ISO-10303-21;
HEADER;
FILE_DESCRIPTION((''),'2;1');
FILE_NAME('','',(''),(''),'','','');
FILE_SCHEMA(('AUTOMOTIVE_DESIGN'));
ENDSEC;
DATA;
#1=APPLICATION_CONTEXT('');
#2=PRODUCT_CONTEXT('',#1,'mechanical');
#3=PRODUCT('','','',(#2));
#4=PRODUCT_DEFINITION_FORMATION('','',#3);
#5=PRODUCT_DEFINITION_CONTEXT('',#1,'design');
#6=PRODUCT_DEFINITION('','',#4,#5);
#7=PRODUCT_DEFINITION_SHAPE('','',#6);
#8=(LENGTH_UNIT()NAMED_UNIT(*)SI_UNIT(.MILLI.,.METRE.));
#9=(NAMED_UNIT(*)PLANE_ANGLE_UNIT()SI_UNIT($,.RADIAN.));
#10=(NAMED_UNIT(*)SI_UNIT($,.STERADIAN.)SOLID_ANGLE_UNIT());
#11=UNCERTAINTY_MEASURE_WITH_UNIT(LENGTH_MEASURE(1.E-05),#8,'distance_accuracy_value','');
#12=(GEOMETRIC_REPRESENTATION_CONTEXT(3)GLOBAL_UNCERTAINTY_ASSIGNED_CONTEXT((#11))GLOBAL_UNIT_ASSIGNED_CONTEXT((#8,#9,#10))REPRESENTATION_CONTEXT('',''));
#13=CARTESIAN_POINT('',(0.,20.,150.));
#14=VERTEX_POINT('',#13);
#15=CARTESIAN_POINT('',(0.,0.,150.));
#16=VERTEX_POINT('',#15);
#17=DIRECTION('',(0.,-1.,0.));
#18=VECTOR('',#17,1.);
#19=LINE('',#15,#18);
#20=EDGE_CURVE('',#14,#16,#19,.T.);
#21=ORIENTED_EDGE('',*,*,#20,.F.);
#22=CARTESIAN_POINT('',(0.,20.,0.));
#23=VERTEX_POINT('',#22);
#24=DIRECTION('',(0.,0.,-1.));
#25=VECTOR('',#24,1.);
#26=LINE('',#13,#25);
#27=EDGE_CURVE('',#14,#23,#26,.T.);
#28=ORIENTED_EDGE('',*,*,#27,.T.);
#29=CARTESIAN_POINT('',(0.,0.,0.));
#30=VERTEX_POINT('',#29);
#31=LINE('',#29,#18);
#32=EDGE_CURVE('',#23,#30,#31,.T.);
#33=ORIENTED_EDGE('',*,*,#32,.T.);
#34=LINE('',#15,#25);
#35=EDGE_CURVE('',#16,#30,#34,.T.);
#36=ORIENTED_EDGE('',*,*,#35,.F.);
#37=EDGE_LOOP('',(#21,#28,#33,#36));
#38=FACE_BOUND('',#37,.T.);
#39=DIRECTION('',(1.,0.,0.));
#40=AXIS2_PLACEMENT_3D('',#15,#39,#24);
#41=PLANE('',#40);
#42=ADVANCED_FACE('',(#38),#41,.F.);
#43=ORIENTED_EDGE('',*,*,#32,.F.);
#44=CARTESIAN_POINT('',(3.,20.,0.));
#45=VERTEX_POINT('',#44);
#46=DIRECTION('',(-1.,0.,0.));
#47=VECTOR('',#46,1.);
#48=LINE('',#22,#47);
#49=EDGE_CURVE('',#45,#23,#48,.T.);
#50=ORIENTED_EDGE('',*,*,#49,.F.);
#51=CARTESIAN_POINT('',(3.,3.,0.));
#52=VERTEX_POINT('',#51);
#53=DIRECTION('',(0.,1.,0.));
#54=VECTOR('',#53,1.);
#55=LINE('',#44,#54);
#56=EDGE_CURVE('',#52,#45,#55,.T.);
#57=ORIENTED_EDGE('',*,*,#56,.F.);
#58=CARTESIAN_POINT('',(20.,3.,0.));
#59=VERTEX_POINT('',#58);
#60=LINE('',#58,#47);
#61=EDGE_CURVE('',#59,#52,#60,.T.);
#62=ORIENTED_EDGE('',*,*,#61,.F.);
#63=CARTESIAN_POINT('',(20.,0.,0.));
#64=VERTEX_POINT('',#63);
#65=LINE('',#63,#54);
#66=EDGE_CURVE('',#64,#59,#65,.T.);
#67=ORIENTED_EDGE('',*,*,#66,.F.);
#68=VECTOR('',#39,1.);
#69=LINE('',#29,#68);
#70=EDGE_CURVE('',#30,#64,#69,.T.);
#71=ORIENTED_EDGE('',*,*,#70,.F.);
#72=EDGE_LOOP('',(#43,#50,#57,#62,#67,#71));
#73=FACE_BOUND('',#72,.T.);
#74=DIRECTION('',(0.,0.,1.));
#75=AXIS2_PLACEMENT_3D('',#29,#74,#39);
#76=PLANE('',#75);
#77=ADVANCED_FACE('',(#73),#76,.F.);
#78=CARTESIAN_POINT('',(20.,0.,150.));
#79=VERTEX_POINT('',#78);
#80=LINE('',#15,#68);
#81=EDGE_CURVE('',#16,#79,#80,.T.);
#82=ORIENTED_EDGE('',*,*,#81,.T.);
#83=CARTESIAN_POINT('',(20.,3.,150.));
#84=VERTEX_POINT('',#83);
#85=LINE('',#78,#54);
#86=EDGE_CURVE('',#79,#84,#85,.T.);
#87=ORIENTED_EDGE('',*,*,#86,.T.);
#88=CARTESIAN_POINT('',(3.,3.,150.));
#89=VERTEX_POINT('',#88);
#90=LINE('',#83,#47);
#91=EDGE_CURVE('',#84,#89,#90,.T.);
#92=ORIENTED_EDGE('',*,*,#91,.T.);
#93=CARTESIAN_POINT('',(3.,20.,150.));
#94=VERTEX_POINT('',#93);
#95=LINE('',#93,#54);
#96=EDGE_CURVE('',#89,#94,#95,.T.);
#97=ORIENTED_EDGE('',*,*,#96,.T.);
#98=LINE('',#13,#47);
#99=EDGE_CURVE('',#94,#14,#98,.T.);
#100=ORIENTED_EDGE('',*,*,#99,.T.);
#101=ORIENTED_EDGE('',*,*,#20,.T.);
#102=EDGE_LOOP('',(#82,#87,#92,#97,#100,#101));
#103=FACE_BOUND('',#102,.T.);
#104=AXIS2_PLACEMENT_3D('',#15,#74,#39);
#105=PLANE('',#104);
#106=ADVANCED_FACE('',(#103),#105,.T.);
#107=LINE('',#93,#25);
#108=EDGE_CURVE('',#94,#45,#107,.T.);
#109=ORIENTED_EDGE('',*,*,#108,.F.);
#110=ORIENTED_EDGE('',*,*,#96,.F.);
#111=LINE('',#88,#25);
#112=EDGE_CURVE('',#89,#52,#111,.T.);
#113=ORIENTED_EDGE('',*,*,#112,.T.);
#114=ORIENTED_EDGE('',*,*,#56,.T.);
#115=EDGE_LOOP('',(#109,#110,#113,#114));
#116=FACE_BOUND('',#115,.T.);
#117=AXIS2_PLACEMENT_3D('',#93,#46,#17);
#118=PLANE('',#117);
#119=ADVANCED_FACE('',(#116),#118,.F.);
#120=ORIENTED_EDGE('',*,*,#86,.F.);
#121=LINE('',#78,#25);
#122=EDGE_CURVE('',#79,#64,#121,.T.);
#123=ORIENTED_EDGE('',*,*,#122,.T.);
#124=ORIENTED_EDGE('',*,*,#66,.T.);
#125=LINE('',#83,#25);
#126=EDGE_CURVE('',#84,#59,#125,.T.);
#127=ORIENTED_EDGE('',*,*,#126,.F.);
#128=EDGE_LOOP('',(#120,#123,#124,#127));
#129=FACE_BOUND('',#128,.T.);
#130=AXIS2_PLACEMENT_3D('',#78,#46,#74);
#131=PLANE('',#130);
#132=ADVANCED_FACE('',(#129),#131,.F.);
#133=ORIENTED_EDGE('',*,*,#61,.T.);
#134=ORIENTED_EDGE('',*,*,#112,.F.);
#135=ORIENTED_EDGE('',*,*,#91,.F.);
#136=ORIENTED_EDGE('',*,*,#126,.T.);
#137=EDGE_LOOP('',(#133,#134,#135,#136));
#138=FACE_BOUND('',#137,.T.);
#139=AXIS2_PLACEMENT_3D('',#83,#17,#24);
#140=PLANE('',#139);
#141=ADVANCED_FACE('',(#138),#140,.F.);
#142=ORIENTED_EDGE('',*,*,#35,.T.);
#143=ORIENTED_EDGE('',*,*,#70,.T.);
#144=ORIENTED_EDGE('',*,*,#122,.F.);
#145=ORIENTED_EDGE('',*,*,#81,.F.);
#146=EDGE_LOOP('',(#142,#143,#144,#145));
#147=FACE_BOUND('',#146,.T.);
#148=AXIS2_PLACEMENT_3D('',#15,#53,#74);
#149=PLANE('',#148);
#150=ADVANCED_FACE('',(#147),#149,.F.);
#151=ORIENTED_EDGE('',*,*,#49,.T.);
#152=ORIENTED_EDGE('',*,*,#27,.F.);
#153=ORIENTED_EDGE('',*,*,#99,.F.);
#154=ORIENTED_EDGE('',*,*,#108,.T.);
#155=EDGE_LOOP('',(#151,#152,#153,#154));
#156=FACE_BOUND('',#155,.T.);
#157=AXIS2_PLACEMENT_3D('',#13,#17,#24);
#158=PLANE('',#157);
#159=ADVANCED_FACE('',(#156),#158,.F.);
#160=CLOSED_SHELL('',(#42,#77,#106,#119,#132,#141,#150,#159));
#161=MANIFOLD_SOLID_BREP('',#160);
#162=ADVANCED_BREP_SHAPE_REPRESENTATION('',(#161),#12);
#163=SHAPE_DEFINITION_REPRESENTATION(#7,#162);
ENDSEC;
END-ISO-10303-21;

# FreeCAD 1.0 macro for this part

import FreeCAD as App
import Part
import Sketcher
from FreeCAD import Vector

doc = App.newDocument("Part")
body = doc.addObject("PartDesign::Body", "Body")

# Sketch on XY plane
sketch1 = body.newObject("Sketcher::SketchObject", "Sketch")
sketch1.AttachmentSupport = (doc.getObject("XY_Plane"), [""])
sketch1.MapMode = "FlatFace"
sketch1.addGeometry(Part.LineSegment(Vector(0, 0, 0), Vector(20, 0, 0)), False)
sketch1.addGeometry(Part.LineSegment(Vector(20, 0, 0), Vector(20, 3, 0)), False)
sketch1.addGeometry(Part.LineSegment(Vector(20, 3, 0), Vector(3, 3, 0)), False)
sketch1.addGeometry(Part.LineSegment(Vector(3, 3, 0), Vector(3, 20, 0)), False)
sketch1.addGeometry(Part.LineSegment(Vector(3, 20, 0), Vector(0, 20, 0)), False)
sketch1.addGeometry(Part.LineSegment(Vector(0, 20, 0), Vector(0, 0, 0)), False)
sketch1.addConstraint(Sketcher.Constraint("Coincident", 0, 2, 1, 1))
sketch1.addConstraint(Sketcher.Constraint("Coincident", 1, 2, 2, 1))
sketch1.addConstraint(Sketcher.Constraint("Coincident", 2, 2, 3, 1))
sketch1.addConstraint(Sketcher.Constraint("Coincident", 3, 2, 4, 1))
sketch1.addConstraint(Sketcher.Constraint("Coincident", 4, 2, 5, 1))
sketch1.addConstraint(Sketcher.Constraint("Coincident", 5, 2, 0, 1))
sketch1.addConstraint(Sketcher.Constraint("Horizontal", 0))
sketch1.addConstraint(Sketcher.Constraint("Vertical", 1))
sketch1.addConstraint(Sketcher.Constraint("Horizontal", 2))
sketch1.addConstraint(Sketcher.Constraint("Vertical", 3))
sketch1.addConstraint(Sketcher.Constraint("Horizontal", 4))
sketch1.addConstraint(Sketcher.Constraint("Vertical", 5))
sketch1.addConstraint(Sketcher.Constraint("Coincident", 5, 2, -1, 1))
sketch1.addConstraint(Sketcher.Constraint("Equal", 4, 1))
sketch1.addConstraint(Sketcher.Constraint("Equal", 2, 3))
sketch1.addConstraint(Sketcher.Constraint("DistanceX", 0, 1, 0, 2, 20.0))
sketch1.addConstraint(Sketcher.Constraint("DistanceX", 2, 2, 2, 1, 17.0))
pad1 = body.newObject("PartDesign::Pad", "Pad")
pad1.Profile = sketch1
pad1.Length = 150

doc.recompute()
